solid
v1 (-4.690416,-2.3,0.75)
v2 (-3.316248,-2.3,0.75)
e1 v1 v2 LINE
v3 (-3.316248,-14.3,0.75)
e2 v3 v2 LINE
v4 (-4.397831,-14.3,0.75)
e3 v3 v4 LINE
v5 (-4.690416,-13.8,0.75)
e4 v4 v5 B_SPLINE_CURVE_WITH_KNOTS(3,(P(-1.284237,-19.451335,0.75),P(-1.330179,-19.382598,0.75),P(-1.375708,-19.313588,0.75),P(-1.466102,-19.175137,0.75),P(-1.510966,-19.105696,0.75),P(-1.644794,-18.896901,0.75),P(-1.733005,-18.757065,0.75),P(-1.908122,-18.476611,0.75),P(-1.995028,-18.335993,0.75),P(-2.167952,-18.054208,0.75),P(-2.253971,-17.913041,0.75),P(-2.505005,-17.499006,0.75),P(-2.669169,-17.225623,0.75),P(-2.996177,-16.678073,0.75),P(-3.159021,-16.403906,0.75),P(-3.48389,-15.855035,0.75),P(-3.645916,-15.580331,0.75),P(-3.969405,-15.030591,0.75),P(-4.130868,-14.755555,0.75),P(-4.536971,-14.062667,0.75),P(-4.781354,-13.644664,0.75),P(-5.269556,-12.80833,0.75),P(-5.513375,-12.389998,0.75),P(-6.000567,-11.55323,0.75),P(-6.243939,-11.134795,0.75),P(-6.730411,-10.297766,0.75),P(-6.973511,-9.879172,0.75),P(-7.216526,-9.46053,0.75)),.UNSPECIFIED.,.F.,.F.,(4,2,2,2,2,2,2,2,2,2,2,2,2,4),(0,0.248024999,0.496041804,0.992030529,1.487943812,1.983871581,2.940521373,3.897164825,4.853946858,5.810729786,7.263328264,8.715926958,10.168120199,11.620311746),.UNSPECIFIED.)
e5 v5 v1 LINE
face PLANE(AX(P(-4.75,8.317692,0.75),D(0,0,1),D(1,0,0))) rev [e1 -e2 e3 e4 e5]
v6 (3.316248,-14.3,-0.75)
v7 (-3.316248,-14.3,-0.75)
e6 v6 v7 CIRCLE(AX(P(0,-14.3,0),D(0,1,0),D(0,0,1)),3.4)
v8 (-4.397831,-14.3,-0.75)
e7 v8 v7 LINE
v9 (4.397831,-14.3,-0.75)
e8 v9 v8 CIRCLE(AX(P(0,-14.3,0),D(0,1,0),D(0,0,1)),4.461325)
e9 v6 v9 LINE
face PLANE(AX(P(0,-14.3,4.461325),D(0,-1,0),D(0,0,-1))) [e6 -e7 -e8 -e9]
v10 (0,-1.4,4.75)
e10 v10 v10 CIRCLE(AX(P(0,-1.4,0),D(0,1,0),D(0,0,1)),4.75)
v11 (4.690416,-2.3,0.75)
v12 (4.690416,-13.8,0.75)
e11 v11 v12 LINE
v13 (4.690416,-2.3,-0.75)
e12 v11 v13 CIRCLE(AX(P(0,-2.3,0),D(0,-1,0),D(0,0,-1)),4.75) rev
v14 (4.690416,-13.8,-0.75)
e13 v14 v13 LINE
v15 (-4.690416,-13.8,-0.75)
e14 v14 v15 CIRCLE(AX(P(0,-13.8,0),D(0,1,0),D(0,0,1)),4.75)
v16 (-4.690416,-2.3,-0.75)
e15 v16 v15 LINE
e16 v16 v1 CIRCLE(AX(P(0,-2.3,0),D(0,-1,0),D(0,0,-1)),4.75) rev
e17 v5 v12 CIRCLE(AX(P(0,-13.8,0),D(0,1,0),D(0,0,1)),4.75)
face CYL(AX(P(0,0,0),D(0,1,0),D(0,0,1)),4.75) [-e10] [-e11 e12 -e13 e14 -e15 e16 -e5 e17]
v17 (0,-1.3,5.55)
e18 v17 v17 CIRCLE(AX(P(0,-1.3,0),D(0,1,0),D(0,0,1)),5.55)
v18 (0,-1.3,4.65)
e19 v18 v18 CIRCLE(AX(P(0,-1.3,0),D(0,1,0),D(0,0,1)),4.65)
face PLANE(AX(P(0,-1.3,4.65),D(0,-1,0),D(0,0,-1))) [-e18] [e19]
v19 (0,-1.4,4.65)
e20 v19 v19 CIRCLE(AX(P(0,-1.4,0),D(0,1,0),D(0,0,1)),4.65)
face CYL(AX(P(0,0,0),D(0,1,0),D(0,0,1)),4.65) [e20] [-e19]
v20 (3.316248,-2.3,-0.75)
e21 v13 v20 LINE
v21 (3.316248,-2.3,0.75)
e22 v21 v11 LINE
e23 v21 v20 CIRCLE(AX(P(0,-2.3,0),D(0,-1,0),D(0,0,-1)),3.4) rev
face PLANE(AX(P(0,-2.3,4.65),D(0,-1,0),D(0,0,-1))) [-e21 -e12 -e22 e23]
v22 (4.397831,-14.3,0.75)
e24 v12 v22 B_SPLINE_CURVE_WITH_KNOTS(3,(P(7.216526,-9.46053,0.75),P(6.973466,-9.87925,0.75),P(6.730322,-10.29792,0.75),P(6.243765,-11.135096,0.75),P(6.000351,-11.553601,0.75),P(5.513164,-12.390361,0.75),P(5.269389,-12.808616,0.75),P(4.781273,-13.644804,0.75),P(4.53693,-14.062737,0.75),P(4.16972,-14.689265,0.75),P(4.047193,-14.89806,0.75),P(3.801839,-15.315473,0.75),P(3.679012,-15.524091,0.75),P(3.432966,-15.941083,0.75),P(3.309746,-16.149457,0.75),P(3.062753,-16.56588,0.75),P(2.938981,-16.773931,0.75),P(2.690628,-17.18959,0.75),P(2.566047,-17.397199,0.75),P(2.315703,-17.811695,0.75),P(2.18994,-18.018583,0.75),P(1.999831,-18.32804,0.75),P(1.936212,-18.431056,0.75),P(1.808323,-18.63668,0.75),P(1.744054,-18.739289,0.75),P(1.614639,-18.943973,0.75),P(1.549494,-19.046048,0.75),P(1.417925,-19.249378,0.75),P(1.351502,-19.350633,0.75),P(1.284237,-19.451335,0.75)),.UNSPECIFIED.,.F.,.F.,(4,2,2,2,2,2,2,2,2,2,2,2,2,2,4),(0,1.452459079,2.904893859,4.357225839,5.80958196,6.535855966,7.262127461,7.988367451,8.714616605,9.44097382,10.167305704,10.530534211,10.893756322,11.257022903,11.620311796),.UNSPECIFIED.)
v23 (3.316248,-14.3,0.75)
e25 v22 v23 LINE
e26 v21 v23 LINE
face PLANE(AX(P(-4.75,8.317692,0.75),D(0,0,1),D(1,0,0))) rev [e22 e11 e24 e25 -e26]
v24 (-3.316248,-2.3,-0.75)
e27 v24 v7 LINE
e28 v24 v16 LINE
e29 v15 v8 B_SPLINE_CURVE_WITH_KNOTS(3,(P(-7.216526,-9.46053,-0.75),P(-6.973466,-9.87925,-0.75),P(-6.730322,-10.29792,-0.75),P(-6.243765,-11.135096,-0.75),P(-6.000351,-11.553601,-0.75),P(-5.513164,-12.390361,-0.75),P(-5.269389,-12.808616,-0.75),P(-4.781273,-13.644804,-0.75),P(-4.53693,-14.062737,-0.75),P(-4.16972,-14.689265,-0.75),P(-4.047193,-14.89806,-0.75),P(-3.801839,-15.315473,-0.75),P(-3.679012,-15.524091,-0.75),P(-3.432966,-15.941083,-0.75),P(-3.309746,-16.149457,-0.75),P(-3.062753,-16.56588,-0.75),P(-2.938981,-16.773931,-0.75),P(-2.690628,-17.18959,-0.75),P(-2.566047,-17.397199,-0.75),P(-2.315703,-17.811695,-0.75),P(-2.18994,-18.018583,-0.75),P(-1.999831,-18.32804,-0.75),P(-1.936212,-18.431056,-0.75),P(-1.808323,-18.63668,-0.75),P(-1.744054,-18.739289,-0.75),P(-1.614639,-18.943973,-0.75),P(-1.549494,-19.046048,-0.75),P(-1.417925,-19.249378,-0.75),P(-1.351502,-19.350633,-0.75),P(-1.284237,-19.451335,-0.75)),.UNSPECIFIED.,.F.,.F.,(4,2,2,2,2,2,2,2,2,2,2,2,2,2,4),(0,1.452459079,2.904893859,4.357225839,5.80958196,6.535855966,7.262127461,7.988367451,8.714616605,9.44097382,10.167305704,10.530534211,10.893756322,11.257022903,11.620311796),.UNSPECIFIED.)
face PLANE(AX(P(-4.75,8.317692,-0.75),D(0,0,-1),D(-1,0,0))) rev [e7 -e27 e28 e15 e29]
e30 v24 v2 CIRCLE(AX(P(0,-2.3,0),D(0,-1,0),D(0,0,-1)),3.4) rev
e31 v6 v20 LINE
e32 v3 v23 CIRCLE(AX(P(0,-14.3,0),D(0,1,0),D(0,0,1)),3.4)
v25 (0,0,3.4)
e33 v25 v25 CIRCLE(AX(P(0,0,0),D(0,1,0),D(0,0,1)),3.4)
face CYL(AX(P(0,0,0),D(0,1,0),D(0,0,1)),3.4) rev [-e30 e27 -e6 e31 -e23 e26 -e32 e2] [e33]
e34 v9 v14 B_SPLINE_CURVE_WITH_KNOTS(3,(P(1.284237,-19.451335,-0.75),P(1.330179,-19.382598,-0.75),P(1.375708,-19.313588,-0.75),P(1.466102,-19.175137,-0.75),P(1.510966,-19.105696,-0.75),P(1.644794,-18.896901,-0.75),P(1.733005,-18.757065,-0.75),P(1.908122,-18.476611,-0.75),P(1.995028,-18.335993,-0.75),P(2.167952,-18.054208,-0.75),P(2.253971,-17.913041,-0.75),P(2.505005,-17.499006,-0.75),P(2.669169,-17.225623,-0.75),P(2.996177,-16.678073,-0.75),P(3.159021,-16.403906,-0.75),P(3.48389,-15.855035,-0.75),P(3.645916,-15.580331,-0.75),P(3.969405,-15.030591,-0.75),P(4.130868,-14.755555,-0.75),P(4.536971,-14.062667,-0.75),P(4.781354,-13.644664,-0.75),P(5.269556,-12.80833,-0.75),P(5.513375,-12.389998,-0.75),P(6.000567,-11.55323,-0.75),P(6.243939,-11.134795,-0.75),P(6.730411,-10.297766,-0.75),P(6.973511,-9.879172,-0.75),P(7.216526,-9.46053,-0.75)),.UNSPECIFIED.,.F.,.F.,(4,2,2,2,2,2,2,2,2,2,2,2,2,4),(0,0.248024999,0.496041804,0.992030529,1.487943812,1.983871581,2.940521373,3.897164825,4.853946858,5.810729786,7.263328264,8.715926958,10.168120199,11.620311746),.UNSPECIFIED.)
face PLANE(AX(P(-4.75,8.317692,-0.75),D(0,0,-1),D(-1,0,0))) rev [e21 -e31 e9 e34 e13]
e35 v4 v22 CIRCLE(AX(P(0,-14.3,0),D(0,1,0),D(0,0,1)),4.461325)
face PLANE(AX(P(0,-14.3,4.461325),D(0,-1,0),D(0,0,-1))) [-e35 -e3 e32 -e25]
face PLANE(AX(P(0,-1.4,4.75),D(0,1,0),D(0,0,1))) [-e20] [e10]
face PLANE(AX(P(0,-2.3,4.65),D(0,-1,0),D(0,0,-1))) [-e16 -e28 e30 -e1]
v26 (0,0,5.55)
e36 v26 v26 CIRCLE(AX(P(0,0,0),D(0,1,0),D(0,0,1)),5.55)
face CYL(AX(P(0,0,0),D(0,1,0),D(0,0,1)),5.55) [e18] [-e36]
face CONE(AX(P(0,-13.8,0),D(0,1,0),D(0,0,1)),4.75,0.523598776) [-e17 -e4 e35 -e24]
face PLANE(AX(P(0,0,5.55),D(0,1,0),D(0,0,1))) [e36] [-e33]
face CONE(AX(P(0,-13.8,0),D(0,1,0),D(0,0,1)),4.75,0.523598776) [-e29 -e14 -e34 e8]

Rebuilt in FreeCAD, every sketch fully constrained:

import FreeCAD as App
import Part
import Sketcher

V = App.Vector
Q = App.Units.Quantity

doc = App.newDocument("Part")
params = doc.addObject("Spreadsheet::Sheet", "Params")
for row, (alias, value) in enumerate([
    ("sketch1_width", "12.4 mm"),
    ("sketch1_width2", "14.3 mm"),
    ("sketch1_width3", "1.3 mm"),
    ("sketch1_width4", "0.1 mm"),
    ("sketch1_height", "2.3 mm"),
    ("revolution_angle", "360 deg"),
    ("sketch2_diameter", "6.8 mm"),
    ("hole_diameter", "6.8 mm"),
    ("sketch3_width", "9.5 mm"),
    ("sketch3_height", "1.5 mm"),
    ("pocket1_length", "12 mm"),
], start=1):
    params.set(f"A{row}", alias)
    params.set(f"B{row}", "=" + value)
    params.setAlias(f"B{row}", alias)

body = doc.addObject("PartDesign::Body", "Body")

# Sketch on YZ plane
sketch1 = body.newObject("Sketcher::SketchObject", "Sketch")
sketch1.AttachmentSupport = (doc.getObject("YZ_Plane"), [""])
sketch1.MapMode = "FlatFace"
sketch1.addGeometry(Part.LineSegment(V(-1.4, 4.75, 0), V(-13.8, 4.75, 0)), False)
sketch1.addGeometry(Part.LineSegment(V(-13.8, 4.75, 0), V(-14.3, 4.46, 0)), False)
sketch1.addGeometry(Part.LineSegment(V(-14.3, 4.46, 0), V(-14.3, 3.25, 0)), False)
sketch1.addGeometry(Part.LineSegment(V(-14.3, 3.25, 0), V(0, 3.25, 0)), False)
sketch1.addGeometry(Part.LineSegment(V(0, 3.25, 0), V(0, 5.55, 0)), False)
sketch1.addGeometry(Part.LineSegment(V(0, 5.55, 0), V(-1.3, 5.55, 0)), False)
sketch1.addGeometry(Part.LineSegment(V(-1.3, 5.55, 0), V(-1.3, 4.65, 0)), False)
sketch1.addGeometry(Part.LineSegment(V(-1.3, 4.65, 0), V(-1.4, 4.65, 0)), False)
sketch1.addGeometry(Part.LineSegment(V(-1.4, 4.65, 0), V(-1.4, 4.75, 0)), False)
sketch1.addConstraint(Sketcher.Constraint("Coincident", 0, 2, 1, 1))
sketch1.addConstraint(Sketcher.Constraint("Coincident", 1, 2, 2, 1))
sketch1.addConstraint(Sketcher.Constraint("Coincident", 2, 2, 3, 1))
sketch1.addConstraint(Sketcher.Constraint("Coincident", 3, 2, 4, 1))
sketch1.addConstraint(Sketcher.Constraint("Coincident", 4, 2, 5, 1))
sketch1.addConstraint(Sketcher.Constraint("Coincident", 5, 2, 6, 1))
sketch1.addConstraint(Sketcher.Constraint("Coincident", 6, 2, 7, 1))
sketch1.addConstraint(Sketcher.Constraint("Coincident", 7, 2, 8, 1))
sketch1.addConstraint(Sketcher.Constraint("Coincident", 8, 2, 0, 1))
sketch1.addConstraint(Sketcher.Constraint("Horizontal", 0))
sketch1.addConstraint(Sketcher.Constraint("Vertical", 2))
sketch1.addConstraint(Sketcher.Constraint("Horizontal", 3))
sketch1.addConstraint(Sketcher.Constraint("Vertical", 4))
sketch1.addConstraint(Sketcher.Constraint("Horizontal", 5))
sketch1.addConstraint(Sketcher.Constraint("Vertical", 6))
sketch1.addConstraint(Sketcher.Constraint("Horizontal", 7))
sketch1.addConstraint(Sketcher.Constraint("Vertical", 8))
sketch1.addConstraint(Sketcher.Constraint("PointOnObject", 3, 2, -2))
sketch1.addConstraint(Sketcher.Constraint("Equal", 7, 8))
sketch1.addConstraint(Sketcher.Constraint("Angle", 1, Q("-150 deg")))
sketch1.addConstraint(Sketcher.Constraint("DistanceX", 0, 2, 0, 1, 12.4))
sketch1.addConstraint(Sketcher.Constraint("DistanceX", 3, 1, 3, 2, 14.3))
sketch1.addConstraint(Sketcher.Constraint("DistanceX", 5, 2, 5, 1, 1.3))
sketch1.addConstraint(Sketcher.Constraint("DistanceX", 7, 2, 7, 1, 0.1))
sketch1.addConstraint(Sketcher.Constraint("DistanceY", 4, 1, 4, 2, 2.3))
sketch1.addConstraint(Sketcher.Constraint("DistanceY", 6, 2, 6, 1, 0.9))
sketch1.addConstraint(Sketcher.Constraint("DistanceY", -1, 1, 0, 2, 4.75))
sketch1.setExpression("Constraints[20]", "Params.sketch1_width")
sketch1.setExpression("Constraints[21]", "Params.sketch1_width2")
sketch1.setExpression("Constraints[22]", "Params.sketch1_width3")
sketch1.setExpression("Constraints[23]", "Params.sketch1_width4")
sketch1.setExpression("Constraints[24]", "Params.sketch1_height")
revolution = body.newObject("PartDesign::Revolution", "Revolution")
revolution.Profile = sketch1
revolution.ReferenceAxis = (sketch1, ["H_Axis"])
revolution.setExpression("Angle", "Params.revolution_angle")

# Sketch on XZ plane
sketch2 = body.newObject("Sketcher::SketchObject", "Sketch001")
sketch2.AttachmentSupport = (doc.getObject("XZ_Plane"), [""])
sketch2.MapMode = "FlatFace"
sketch2.addGeometry(Part.Circle(V(0, 0, 0), V(0, 0, 1), 3.4), False)
sketch2.addConstraint(Sketcher.Constraint("Coincident", 0, 3, -1, 1))
sketch2.addConstraint(Sketcher.Constraint("Diameter", 0, 6.8))
sketch2.setExpression("Constraints[1]", "Params.sketch2_diameter")
doc.recompute()
hole = body.newObject("PartDesign::Hole", "Hole")
hole.Profile = sketch2
hole.ThreadType = "None"
hole.setExpression("Diameter", "Params.hole_diameter")
hole.DepthType = "ThroughAll"
hole.Reversed = True

# Sketch on XZ plane
sketch3 = body.newObject("Sketcher::SketchObject", "Sketch002")
sketch3.AttachmentSupport = (doc.getObject("XZ_Plane"), [""])
sketch3.MapMode = "FlatFace"
sketch3.AttachmentOffset = App.Placement(V(0, 0, 14.3), App.Rotation())
sketch3.addGeometry(Part.LineSegment(V(-4.8, 0.8, 0), V(-4.8, -0.8, 0)), False)
sketch3.addGeometry(Part.LineSegment(V(-4.8, -0.8, 0), V(4.8, -0.8, 0)), False)
sketch3.addGeometry(Part.LineSegment(V(4.8, -0.8, 0), V(4.8, 0.8, 0)), False)
sketch3.addGeometry(Part.LineSegment(V(4.8, 0.8, 0), V(-4.8, 0.8, 0)), False)
sketch3.addConstraint(Sketcher.Constraint("Coincident", 0, 2, 1, 1))
sketch3.addConstraint(Sketcher.Constraint("Coincident", 1, 2, 2, 1))
sketch3.addConstraint(Sketcher.Constraint("Coincident", 2, 2, 3, 1))
sketch3.addConstraint(Sketcher.Constraint("Coincident", 3, 2, 0, 1))
sketch3.addConstraint(Sketcher.Constraint("Vertical", 0))
sketch3.addConstraint(Sketcher.Constraint("Horizontal", 1))
sketch3.addConstraint(Sketcher.Constraint("Vertical", 2))
sketch3.addConstraint(Sketcher.Constraint("Horizontal", 3))
sketch3.addConstraint(Sketcher.Constraint("Symmetric", 0, 2, 2, 2, -1, 1))
sketch3.addConstraint(Sketcher.Constraint("DistanceX", 1, 1, 1, 2, 9.5))
sketch3.addConstraint(Sketcher.Constraint("DistanceY", 0, 2, 0, 1, 1.5))
sketch3.setExpression("Constraints[9]", "Params.sketch3_width")
sketch3.setExpression("Constraints[10]", "Params.sketch3_height")
pocket1 = body.newObject("PartDesign::Pocket", "Pocket")
pocket1.Profile = sketch3
pocket1.setExpression("Length", "Params.pocket1_length")

doc.recompute()
